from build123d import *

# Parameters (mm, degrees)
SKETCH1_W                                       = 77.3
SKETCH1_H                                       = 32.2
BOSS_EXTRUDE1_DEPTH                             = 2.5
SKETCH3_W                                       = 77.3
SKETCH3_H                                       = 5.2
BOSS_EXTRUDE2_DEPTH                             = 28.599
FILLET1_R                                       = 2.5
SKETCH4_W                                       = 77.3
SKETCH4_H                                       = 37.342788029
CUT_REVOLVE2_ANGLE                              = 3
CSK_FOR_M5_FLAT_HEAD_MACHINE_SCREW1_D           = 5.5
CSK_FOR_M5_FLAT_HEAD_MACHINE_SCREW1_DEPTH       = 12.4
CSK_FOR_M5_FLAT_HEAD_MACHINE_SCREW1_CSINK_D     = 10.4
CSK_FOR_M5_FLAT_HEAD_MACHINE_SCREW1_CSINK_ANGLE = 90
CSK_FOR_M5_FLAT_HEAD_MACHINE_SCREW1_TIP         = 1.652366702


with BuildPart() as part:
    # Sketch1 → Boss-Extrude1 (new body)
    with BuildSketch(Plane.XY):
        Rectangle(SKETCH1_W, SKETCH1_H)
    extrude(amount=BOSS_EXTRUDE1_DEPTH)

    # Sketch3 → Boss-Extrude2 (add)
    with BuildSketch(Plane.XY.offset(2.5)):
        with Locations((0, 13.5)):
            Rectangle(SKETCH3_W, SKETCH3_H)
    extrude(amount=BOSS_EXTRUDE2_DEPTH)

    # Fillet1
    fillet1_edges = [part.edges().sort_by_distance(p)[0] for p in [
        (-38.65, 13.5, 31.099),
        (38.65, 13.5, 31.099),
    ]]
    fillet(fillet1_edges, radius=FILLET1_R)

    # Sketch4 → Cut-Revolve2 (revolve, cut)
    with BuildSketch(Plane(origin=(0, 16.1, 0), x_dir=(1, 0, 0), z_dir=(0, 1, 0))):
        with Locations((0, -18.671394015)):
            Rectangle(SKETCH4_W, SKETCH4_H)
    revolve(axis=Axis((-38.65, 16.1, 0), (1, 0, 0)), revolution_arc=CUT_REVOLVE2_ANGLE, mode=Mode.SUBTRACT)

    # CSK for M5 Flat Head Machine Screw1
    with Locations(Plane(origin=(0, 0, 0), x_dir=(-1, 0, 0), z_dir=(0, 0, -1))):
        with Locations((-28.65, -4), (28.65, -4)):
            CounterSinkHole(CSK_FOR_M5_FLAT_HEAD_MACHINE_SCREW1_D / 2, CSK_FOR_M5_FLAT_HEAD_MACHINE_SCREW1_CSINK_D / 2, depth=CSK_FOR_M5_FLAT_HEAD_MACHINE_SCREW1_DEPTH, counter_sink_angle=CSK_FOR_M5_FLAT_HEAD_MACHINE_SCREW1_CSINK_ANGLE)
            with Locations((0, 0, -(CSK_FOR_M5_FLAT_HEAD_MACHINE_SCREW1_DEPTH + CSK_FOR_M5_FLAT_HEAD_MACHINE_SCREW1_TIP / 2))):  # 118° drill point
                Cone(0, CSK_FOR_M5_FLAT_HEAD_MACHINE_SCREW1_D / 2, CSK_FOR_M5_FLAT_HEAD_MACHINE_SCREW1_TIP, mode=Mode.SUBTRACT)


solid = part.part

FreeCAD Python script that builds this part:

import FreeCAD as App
import Part
import Sketcher

V = App.Vector
Q = App.Units.Quantity


def edges_at(feature, points):
    """Names of the edges that pass closest to the given points."""
    edges = feature.Shape.Edges
    near = lambda p: min(range(len(edges)), key=lambda i: edges[i].distToShape(Part.Vertex(*p))[0])
    return sorted({f"Edge{near(p) + 1}" for p in points})

doc = App.newDocument("Part")
body = doc.addObject("PartDesign::Body", "Body")

# Sketch on XY plane
sketch1 = body.newObject("Sketcher::SketchObject", "Sketch")
sketch1.AttachmentSupport = (doc.getObject("XY_Plane"), [""])
sketch1.MapMode = "FlatFace"
sketch1.addGeometry([
    Part.LineSegment(V(-39, 16, 0), V(-39, -16, 0)),
    Part.LineSegment(V(-39, -16, 0), V(39, -16, 0)),
    Part.LineSegment(V(39, -16, 0), V(39, 16, 0)),
    Part.LineSegment(V(39, 16, 0), V(-39, 16, 0)),
], False)
sketch1.addConstraint([
    Sketcher.Constraint("Coincident", 0, 2, 1, 1),
    Sketcher.Constraint("Coincident", 1, 2, 2, 1),
    Sketcher.Constraint("Coincident", 2, 2, 3, 1),
    Sketcher.Constraint("Coincident", 3, 2, 0, 1),
    Sketcher.Constraint("Vertical", 0),
    Sketcher.Constraint("Horizontal", 1),
    Sketcher.Constraint("Vertical", 2),
    Sketcher.Constraint("Horizontal", 3),
    Sketcher.Constraint("Symmetric", 0, 2, 2, 2, -1, 1),
    Sketcher.Constraint("DistanceX", 1, 1, 1, 2, Q("77.3 mm")),
    Sketcher.Constraint("DistanceY", 0, 2, 0, 1, Q("32.2 mm")),
])
pad1 = body.newObject("PartDesign::Pad", "Pad")
pad1.Profile = sketch1
pad1.Length = 2.5

# Sketch on XY plane
sketch2 = body.newObject("Sketcher::SketchObject", "Sketch001")
sketch2.AttachmentSupport = (doc.getObject("XY_Plane"), [""])
sketch2.MapMode = "FlatFace"
sketch2.AttachmentOffset = App.Placement(V(0, 0, 2.5), App.Rotation())
sketch2.addGeometry([
    Part.LineSegment(V(-39, 16, 0), V(-39, 11, 0)),
    Part.LineSegment(V(-39, 11, 0), V(39, 11, 0)),
    Part.LineSegment(V(39, 11, 0), V(39, 16, 0)),
    Part.LineSegment(V(39, 16, 0), V(-39, 16, 0)),
], False)
sketch2.addConstraint([
    Sketcher.Constraint("Coincident", 0, 2, 1, 1),
    Sketcher.Constraint("Coincident", 1, 2, 2, 1),
    Sketcher.Constraint("Coincident", 2, 2, 3, 1),
    Sketcher.Constraint("Coincident", 3, 2, 0, 1),
    Sketcher.Constraint("Vertical", 0),
    Sketcher.Constraint("Horizontal", 1),
    Sketcher.Constraint("Vertical", 2),
    Sketcher.Constraint("Horizontal", 3),
    Sketcher.Constraint("DistanceX", 1, 1, 1, 2, Q("77.3 mm")),
    Sketcher.Constraint("DistanceY", 0, 2, 0, 1, Q("5.2 mm")),
    Sketcher.Constraint("DistanceY", -1, 1, 0, 2, Q("10.9 mm")),
    Sketcher.Constraint("DistanceX", 0, 2, -1, 1, Q("38.65 mm")),
])
pad2 = body.newObject("PartDesign::Pad", "Pad001")
pad2.Profile = sketch2
pad2.Length = 28.599
doc.recompute()

fillet = body.newObject("PartDesign::Fillet", "Fillet")
fillet.Base = (pad2, edges_at(pad2, [(-38.65, 13.5, 31.099), (38.65, 13.5, 31.099)]))
fillet.Radius = 2.5

# Sketch on XZ plane
sketch3 = body.newObject("Sketcher::SketchObject", "Sketch002")
sketch3.AttachmentSupport = (doc.getObject("XZ_Plane"), [""])
sketch3.MapMode = "FlatFace"
sketch3.AttachmentOffset = App.Placement(V(0, 0, -16.1), App.Rotation())
sketch3.addGeometry([
    Part.LineSegment(V(-39, 0, 0), V(-39, 37, 0)),
    Part.LineSegment(V(-39, 37, 0), V(39, 37, 0)),
    Part.LineSegment(V(39, 37, 0), V(39, 0, 0)),
    Part.LineSegment(V(39, 0, 0), V(-39, 0, 0)),
], False)
sketch3.addConstraint([
    Sketcher.Constraint("Coincident", 0, 2, 1, 1),
    Sketcher.Constraint("Coincident", 1, 2, 2, 1),
    Sketcher.Constraint("Coincident", 2, 2, 3, 1),
    Sketcher.Constraint("Coincident", 3, 2, 0, 1),
    Sketcher.Constraint("Vertical", 0),
    Sketcher.Constraint("Horizontal", 1),
    Sketcher.Constraint("Vertical", 2),
    Sketcher.Constraint("Horizontal", 3),
    Sketcher.Constraint("Symmetric", 2, 2, 3, 2, -1, 1),
    Sketcher.Constraint("DistanceX", 1, 1, 1, 2, Q("77.3 mm")),
    Sketcher.Constraint("DistanceY", 0, 1, 0, 2, Q("37.342788 mm")),
])
groove = body.newObject("PartDesign::Groove", "Groove")
groove.Profile = sketch3
groove.ReferenceAxis = (sketch3, ["H_Axis"])
groove.Angle = 3

# Sketch on XY plane
sketch4 = body.newObject("Sketcher::SketchObject", "Sketch003")
sketch4.AttachmentSupport = (doc.getObject("XY_Plane"), [""])
sketch4.MapMode = "FlatFace"
sketch4.addGeometry([
    Part.Circle(V(28.6, -4, 0), V(0, 0, 1), 2.8),
    Part.Circle(V(-28.6, -4, 0), V(0, 0, 1), 2.8),
], False)
sketch4.addConstraint([
    Sketcher.Constraint("Equal", 0, 1),
    Sketcher.Constraint("Symmetric", 0, 3, 1, 3, -2),
    Sketcher.Constraint("Diameter", 0, Q("5.5 mm")),
    Sketcher.Constraint("DistanceY", 0, 3, -1, 1, Q("4 mm")),
    Sketcher.Constraint("DistanceX", 1, 3, 0, 3, Q("57.3 mm")),
])
doc.recompute()
hole = body.newObject("PartDesign::Hole", "Hole")
hole.Profile = sketch4
hole.ThreadType = "None"
hole.Diameter = 5.5
hole.DepthType = "Dimension"
hole.Depth = 12.4
hole.DrillPoint = "Angled"
hole.DrillPointAngle = 118
hole.HoleCutType = "Countersink"
hole.HoleCutDiameter = 10.4
hole.HoleCutCountersinkAngle = 90
hole.Reversed = True

doc.recompute()
